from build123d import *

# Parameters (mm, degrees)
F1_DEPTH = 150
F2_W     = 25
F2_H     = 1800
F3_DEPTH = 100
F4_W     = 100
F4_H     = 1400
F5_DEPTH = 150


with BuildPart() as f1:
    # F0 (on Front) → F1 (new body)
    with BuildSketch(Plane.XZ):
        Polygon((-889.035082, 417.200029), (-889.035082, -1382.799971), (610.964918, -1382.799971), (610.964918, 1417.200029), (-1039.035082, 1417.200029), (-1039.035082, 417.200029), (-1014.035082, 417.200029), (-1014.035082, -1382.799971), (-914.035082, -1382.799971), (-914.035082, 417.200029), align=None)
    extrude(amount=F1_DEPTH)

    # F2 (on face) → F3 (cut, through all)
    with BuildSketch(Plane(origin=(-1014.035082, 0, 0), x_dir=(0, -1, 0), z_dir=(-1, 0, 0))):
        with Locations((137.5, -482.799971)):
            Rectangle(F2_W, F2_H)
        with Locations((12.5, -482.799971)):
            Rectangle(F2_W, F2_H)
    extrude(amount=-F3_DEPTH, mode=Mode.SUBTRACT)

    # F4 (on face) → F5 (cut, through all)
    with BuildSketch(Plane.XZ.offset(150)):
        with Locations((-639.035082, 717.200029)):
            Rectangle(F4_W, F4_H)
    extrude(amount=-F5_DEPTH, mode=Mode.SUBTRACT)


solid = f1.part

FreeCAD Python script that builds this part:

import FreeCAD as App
import Part
import Sketcher
from FreeCAD import Vector
Q = App.Units.Quantity

doc = App.newDocument("Part")
body = doc.addObject("PartDesign::Body", "Body")

# Sketch on XZ plane
sketch1 = body.newObject("Sketcher::SketchObject", "Sketch")
sketch1.AttachmentSupport = (doc.getObject("XZ_Plane"), [""])
sketch1.MapMode = "FlatFace"
sketch1.addGeometry(Part.LineSegment(Vector(-889.035082, 417.200029, 0), Vector(-889.035082, -1382.799971, 0)), False)
sketch1.addGeometry(Part.LineSegment(Vector(-889.035082, -1382.799971, 0), Vector(610.964918, -1382.799971, 0)), False)
sketch1.addGeometry(Part.LineSegment(Vector(610.964918, -1382.799971, 0), Vector(610.964918, 1417.200029, 0)), False)
sketch1.addGeometry(Part.LineSegment(Vector(610.964918, 1417.200029, 0), Vector(-1039.035082, 1417.200029, 0)), False)
sketch1.addGeometry(Part.LineSegment(Vector(-1039.035082, 1417.200029, 0), Vector(-1039.035082, 417.200029, 0)), False)
sketch1.addGeometry(Part.LineSegment(Vector(-1039.035082, 417.200029, 0), Vector(-1014.035082, 417.200029, 0)), False)
sketch1.addGeometry(Part.LineSegment(Vector(-1014.035082, 417.200029, 0), Vector(-1014.035082, -1382.799971, 0)), False)
sketch1.addGeometry(Part.LineSegment(Vector(-1014.035082, -1382.799971, 0), Vector(-914.035082, -1382.799971, 0)), False)
sketch1.addGeometry(Part.LineSegment(Vector(-914.035082, -1382.799971, 0), Vector(-914.035082, 417.200029, 0)), False)
sketch1.addGeometry(Part.LineSegment(Vector(-914.035082, 417.200029, 0), Vector(-889.035082, 417.200029, 0)), False)
sketch1.addConstraint(Sketcher.Constraint("Coincident", 0, 2, 1, 1))
sketch1.addConstraint(Sketcher.Constraint("Coincident", 1, 2, 2, 1))
sketch1.addConstraint(Sketcher.Constraint("Coincident", 2, 2, 3, 1))
sketch1.addConstraint(Sketcher.Constraint("Coincident", 3, 2, 4, 1))
sketch1.addConstraint(Sketcher.Constraint("Coincident", 4, 2, 5, 1))
sketch1.addConstraint(Sketcher.Constraint("Coincident", 5, 2, 6, 1))
sketch1.addConstraint(Sketcher.Constraint("Coincident", 6, 2, 7, 1))
sketch1.addConstraint(Sketcher.Constraint("Coincident", 7, 2, 8, 1))
sketch1.addConstraint(Sketcher.Constraint("Coincident", 8, 2, 9, 1))
sketch1.addConstraint(Sketcher.Constraint("Coincident", 9, 2, 0, 1))
sketch1.addConstraint(Sketcher.Constraint("Vertical", 0))
sketch1.addConstraint(Sketcher.Constraint("Horizontal", 1))
sketch1.addConstraint(Sketcher.Constraint("Vertical", 2))
sketch1.addConstraint(Sketcher.Constraint("Horizontal", 3))
sketch1.addConstraint(Sketcher.Constraint("Vertical", 4))
sketch1.addConstraint(Sketcher.Constraint("Horizontal", 5))
sketch1.addConstraint(Sketcher.Constraint("Vertical", 6))
sketch1.addConstraint(Sketcher.Constraint("Horizontal", 7))
sketch1.addConstraint(Sketcher.Constraint("Vertical", 8))
sketch1.addConstraint(Sketcher.Constraint("Horizontal", 9))
sketch1.addConstraint(Sketcher.Constraint("Horizontal", 1, 2, 6, 2))
sketch1.addConstraint(Sketcher.Constraint("Horizontal", 5, 2, 8, 2))
sketch1.addConstraint(Sketcher.Constraint("Equal", 5, 9))
sketch1.addConstraint(Sketcher.Constraint("DistanceX", 1, 1, 1, 2, Q("1500 mm")))
sketch1.addConstraint(Sketcher.Constraint("DistanceX", 3, 2, 3, 1, Q("1650 mm")))
sketch1.addConstraint(Sketcher.Constraint("DistanceX", 5, 1, 5, 2, Q("25 mm")))
sketch1.addConstraint(Sketcher.Constraint("DistanceY", 0, 2, 0, 1, Q("1800 mm")))
sketch1.addConstraint(Sketcher.Constraint("DistanceY", 2, 1, 2, 2, Q("2800 mm")))
sketch1.addConstraint(Sketcher.Constraint("DistanceX", 0, 2, -1, 1, Q("889.035082 mm")))
sketch1.addConstraint(Sketcher.Constraint("DistanceY", 0, 2, -1, 1, Q("1382.799971 mm")))
pad1 = body.newObject("PartDesign::Pad", "Pad")
pad1.Profile = sketch1
pad1.Length = 150

# Sketch on YZ plane
sketch2 = body.newObject("Sketcher::SketchObject", "Sketch001")
sketch2.AttachmentSupport = (doc.getObject("YZ_Plane"), [""])
sketch2.MapMode = "FlatFace"
sketch2.AttachmentOffset = App.Placement(Vector(0, 0, -1014.035082), App.Rotation())
sketch2.addGeometry(Part.LineSegment(Vector(-125, 417.200029, 0), Vector(-125, -1382.799971, 0)), False)
sketch2.addGeometry(Part.LineSegment(Vector(-125, -1382.799971, 0), Vector(-150, -1382.799971, 0)), False)
sketch2.addGeometry(Part.LineSegment(Vector(-150, -1382.799971, 0), Vector(-150, 417.200029, 0)), False)
sketch2.addGeometry(Part.LineSegment(Vector(-150, 417.200029, 0), Vector(-125, 417.200029, 0)), False)
sketch2.addGeometry(Part.LineSegment(Vector(0, 417.200029, 0), Vector(0, -1382.799971, 0)), False)
sketch2.addGeometry(Part.LineSegment(Vector(0, -1382.799971, 0), Vector(-25, -1382.799971, 0)), False)
sketch2.addGeometry(Part.LineSegment(Vector(-25, -1382.799971, 0), Vector(-25, 417.200029, 0)), False)
sketch2.addGeometry(Part.LineSegment(Vector(-25, 417.200029, 0), Vector(0, 417.200029, 0)), False)
sketch2.addConstraint(Sketcher.Constraint("Coincident", 0, 2, 1, 1))
sketch2.addConstraint(Sketcher.Constraint("Coincident", 1, 2, 2, 1))
sketch2.addConstraint(Sketcher.Constraint("Coincident", 2, 2, 3, 1))
sketch2.addConstraint(Sketcher.Constraint("Coincident", 3, 2, 0, 1))
sketch2.addConstraint(Sketcher.Constraint("Coincident", 4, 2, 5, 1))
sketch2.addConstraint(Sketcher.Constraint("Coincident", 5, 2, 6, 1))
sketch2.addConstraint(Sketcher.Constraint("Coincident", 6, 2, 7, 1))
sketch2.addConstraint(Sketcher.Constraint("Coincident", 7, 2, 4, 1))
sketch2.addConstraint(Sketcher.Constraint("Vertical", 0))
sketch2.addConstraint(Sketcher.Constraint("Horizontal", 1))
sketch2.addConstraint(Sketcher.Constraint("Vertical", 2))
sketch2.addConstraint(Sketcher.Constraint("Horizontal", 3))
sketch2.addConstraint(Sketcher.Constraint("Vertical", 4))
sketch2.addConstraint(Sketcher.Constraint("Horizontal", 5))
sketch2.addConstraint(Sketcher.Constraint("Vertical", 6))
sketch2.addConstraint(Sketcher.Constraint("Horizontal", 7))
sketch2.addConstraint(Sketcher.Constraint("PointOnObject", 4, 2, -2))
sketch2.addConstraint(Sketcher.Constraint("Horizontal", 1, 2, 4, 2))
sketch2.addConstraint(Sketcher.Constraint("Horizontal", 3, 2, 6, 2))
sketch2.addConstraint(Sketcher.Constraint("Equal", 3, 5))
sketch2.addConstraint(Sketcher.Constraint("DistanceX", 1, 2, 1, 1, Q("25 mm")))
sketch2.addConstraint(Sketcher.Constraint("DistanceY", 0, 2, 0, 1, Q("1800 mm")))
sketch2.addConstraint(Sketcher.Constraint("DistanceX", 0, 2, -1, 1, Q("125 mm")))
sketch2.addConstraint(Sketcher.Constraint("DistanceY", 0, 2, -1, 1, Q("1382.799971 mm")))
pocket1 = body.newObject("PartDesign::Pocket", "Pocket")
pocket1.Profile = sketch2
pocket1.Length = 100
pocket1.Reversed = True

# Sketch on XZ plane
sketch3 = body.newObject("Sketcher::SketchObject", "Sketch002")
sketch3.AttachmentSupport = (doc.getObject("XZ_Plane"), [""])
sketch3.MapMode = "FlatFace"
sketch3.AttachmentOffset = App.Placement(Vector(0, 0, 150), App.Rotation())
sketch3.addGeometry(Part.LineSegment(Vector(-689.035082, 1417.200029, 0), Vector(-689.035082, 17.200029, 0)), False)
sketch3.addGeometry(Part.LineSegment(Vector(-689.035082, 17.200029, 0), Vector(-589.035082, 17.200029, 0)), False)
sketch3.addGeometry(Part.LineSegment(Vector(-589.035082, 17.200029, 0), Vector(-589.035082, 1417.200029, 0)), False)
sketch3.addGeometry(Part.LineSegment(Vector(-589.035082, 1417.200029, 0), Vector(-689.035082, 1417.200029, 0)), False)
sketch3.addConstraint(Sketcher.Constraint("Coincident", 0, 2, 1, 1))
sketch3.addConstraint(Sketcher.Constraint("Coincident", 1, 2, 2, 1))
sketch3.addConstraint(Sketcher.Constraint("Coincident", 2, 2, 3, 1))
sketch3.addConstraint(Sketcher.Constraint("Coincident", 3, 2, 0, 1))
sketch3.addConstraint(Sketcher.Constraint("Vertical", 0))
sketch3.addConstraint(Sketcher.Constraint("Horizontal", 1))
sketch3.addConstraint(Sketcher.Constraint("Vertical", 2))
sketch3.addConstraint(Sketcher.Constraint("Horizontal", 3))
sketch3.addConstraint(Sketcher.Constraint("DistanceX", 1, 1, 1, 2, Q("100 mm")))
sketch3.addConstraint(Sketcher.Constraint("DistanceY", 0, 2, 0, 1, Q("1400 mm")))
sketch3.addConstraint(Sketcher.Constraint("DistanceX", 0, 2, -1, 1, Q("689.035082 mm")))
sketch3.addConstraint(Sketcher.Constraint("DistanceY", -1, 1, 0, 2, Q("17.200029 mm")))
pocket2 = body.newObject("PartDesign::Pocket", "Pocket001")
pocket2.Profile = sketch3
pocket2.Type = "ThroughAll"

doc.recompute()
